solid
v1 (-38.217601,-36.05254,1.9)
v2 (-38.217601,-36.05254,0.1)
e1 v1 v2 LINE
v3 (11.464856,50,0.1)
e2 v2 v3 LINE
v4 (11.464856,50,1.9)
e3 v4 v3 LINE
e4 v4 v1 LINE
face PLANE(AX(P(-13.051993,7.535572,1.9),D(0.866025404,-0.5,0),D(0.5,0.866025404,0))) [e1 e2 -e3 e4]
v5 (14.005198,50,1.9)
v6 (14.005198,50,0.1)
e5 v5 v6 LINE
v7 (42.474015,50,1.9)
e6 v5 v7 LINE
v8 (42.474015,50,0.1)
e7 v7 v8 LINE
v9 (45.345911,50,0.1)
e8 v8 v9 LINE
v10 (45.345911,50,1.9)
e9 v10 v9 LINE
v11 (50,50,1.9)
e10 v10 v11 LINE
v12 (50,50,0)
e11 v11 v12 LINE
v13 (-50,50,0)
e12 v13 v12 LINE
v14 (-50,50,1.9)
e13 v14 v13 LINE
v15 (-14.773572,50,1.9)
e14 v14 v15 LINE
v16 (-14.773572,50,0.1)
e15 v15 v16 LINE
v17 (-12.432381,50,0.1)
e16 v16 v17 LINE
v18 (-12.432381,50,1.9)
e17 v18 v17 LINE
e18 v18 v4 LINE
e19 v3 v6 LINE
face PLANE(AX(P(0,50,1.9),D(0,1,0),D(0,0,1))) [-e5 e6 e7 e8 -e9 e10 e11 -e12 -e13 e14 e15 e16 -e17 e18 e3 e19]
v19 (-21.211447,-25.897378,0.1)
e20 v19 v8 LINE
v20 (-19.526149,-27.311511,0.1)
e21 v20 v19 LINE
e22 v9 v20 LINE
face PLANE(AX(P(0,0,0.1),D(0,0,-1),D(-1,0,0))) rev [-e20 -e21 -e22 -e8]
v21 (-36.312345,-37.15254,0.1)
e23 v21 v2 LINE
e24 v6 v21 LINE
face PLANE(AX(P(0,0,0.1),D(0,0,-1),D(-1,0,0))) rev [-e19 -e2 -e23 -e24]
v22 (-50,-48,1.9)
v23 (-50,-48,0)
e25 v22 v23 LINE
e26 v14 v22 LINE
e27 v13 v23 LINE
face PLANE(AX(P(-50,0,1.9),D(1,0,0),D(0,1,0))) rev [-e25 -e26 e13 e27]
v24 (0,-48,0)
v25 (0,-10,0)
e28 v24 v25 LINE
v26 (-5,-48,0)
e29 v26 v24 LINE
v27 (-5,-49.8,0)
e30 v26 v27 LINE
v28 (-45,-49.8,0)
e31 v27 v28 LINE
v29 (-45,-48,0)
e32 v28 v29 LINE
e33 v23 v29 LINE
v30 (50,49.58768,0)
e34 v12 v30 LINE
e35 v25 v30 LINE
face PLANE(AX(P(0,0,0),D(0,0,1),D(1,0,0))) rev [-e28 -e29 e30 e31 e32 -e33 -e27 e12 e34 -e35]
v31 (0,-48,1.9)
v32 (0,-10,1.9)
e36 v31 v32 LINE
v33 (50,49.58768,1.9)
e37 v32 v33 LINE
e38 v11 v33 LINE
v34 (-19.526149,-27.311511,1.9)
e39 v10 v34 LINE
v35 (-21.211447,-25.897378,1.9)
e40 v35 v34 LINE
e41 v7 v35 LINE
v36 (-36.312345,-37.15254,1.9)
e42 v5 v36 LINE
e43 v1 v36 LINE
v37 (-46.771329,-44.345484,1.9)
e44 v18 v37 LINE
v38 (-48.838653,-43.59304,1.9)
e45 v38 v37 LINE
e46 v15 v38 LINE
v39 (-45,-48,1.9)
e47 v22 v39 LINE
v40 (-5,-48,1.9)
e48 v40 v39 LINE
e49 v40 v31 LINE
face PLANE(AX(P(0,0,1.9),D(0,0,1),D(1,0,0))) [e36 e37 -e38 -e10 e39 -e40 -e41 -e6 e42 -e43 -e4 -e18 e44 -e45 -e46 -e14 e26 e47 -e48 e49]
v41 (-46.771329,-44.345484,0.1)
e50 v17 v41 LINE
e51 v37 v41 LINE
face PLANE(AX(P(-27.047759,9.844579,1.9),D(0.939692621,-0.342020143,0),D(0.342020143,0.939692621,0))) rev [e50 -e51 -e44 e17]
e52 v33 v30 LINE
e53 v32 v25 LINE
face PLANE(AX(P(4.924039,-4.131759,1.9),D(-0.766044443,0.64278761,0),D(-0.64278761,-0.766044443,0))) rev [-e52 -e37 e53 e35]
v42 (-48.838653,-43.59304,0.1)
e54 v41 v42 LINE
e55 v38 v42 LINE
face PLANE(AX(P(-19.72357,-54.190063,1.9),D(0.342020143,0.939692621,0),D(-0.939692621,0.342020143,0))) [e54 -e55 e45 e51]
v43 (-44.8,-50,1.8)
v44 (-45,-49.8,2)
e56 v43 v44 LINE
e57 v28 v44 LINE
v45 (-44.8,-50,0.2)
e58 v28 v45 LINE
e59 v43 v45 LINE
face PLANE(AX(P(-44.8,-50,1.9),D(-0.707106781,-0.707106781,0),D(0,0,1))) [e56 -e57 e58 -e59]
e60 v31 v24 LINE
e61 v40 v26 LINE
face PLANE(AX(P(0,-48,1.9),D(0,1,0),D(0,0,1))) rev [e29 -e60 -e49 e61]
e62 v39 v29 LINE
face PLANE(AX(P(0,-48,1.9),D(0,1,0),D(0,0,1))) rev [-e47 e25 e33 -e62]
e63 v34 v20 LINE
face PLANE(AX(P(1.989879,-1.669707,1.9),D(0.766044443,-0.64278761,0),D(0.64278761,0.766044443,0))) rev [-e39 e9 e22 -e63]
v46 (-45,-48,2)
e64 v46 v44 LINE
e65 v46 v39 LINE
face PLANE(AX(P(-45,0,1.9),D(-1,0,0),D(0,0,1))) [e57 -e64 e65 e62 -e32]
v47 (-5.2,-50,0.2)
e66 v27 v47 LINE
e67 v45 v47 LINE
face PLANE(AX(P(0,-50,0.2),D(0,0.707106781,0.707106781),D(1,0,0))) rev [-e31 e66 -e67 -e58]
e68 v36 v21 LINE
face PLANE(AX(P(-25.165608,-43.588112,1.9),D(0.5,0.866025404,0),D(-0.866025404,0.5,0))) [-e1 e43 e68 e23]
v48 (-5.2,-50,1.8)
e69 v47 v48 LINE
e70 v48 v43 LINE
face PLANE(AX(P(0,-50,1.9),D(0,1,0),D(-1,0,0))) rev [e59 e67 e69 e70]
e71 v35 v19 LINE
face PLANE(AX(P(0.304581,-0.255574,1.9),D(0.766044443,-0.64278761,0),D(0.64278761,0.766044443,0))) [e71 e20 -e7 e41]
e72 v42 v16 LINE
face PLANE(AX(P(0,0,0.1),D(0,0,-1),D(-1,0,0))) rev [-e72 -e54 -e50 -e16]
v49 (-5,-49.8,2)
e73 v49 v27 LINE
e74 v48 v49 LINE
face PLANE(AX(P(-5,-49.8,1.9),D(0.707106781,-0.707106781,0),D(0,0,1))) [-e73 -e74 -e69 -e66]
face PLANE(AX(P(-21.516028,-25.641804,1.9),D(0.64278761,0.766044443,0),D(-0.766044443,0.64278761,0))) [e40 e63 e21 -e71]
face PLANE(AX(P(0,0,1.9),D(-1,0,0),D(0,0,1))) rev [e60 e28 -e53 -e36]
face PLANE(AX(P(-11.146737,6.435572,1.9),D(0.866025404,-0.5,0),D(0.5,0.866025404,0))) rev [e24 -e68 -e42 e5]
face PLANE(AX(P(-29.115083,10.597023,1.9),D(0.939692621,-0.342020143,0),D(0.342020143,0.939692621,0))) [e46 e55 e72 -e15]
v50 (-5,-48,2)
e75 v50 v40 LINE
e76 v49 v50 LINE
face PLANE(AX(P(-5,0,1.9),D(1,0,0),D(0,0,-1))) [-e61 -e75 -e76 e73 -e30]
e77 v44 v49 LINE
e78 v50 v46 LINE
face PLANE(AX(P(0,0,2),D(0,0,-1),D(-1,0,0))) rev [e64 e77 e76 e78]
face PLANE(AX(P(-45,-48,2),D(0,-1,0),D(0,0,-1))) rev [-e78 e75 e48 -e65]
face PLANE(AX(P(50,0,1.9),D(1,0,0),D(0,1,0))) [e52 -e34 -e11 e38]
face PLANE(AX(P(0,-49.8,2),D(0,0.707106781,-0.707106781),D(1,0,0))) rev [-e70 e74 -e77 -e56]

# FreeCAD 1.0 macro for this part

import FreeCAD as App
import Part
import Sketcher

V = App.Vector
Q = App.Units.Quantity


def edges_at(feature, points):
    """Names of the edges that pass closest to the given points."""
    edges = feature.Shape.Edges
    near = lambda p: min(range(len(edges)), key=lambda i: edges[i].distToShape(Part.Vertex(*p))[0])
    return sorted({f"Edge{near(p) + 1}" for p in points})


def add_polygon(sketch, points):
    """Adds a closed chain of lines whose ends are joined by coincident constraints."""
    first, n = sketch.GeometryCount, len(points)
    for a, b in zip(points, points[1:] + points[:1]):
        sketch.addGeometry(Part.LineSegment(App.Vector(*a, 0), App.Vector(*b, 0)), False)
    for i in range(n):
        sketch.addConstraint(Sketcher.Constraint("Coincident", first + i, 2, first + (i + 1) % n, 1))

doc = App.newDocument("Part")
body = doc.addObject("PartDesign::Body", "Body")

# Sketch on XY plane
sketch1 = body.newObject("Sketcher::SketchObject", "Sketch")
sketch1.AttachmentSupport = (doc.getObject("XY_Plane"), [""])
sketch1.MapMode = "FlatFace"
add_polygon(sketch1, [(-36.312345, -37.15254), (-38.217601, -36.05254), (11.464856, 50), (-12.432381, 50), (-46.771329, -44.345484), (-48.838653, -43.59304), (-14.773572, 50), (-50, 50), (-50, -48), (-45, -48), (-45, -50), (-5, -50), (-5, -48), (0, -48), (0, -10), (50, 49.58768), (50, 50), (45.345911, 50), (-19.526149, -27.311511), (-21.211447, -25.897378), (42.474015, 50), (14.005198, 50)])  # lines 0-21
sketch1.addConstraint(Sketcher.Constraint("Horizontal", 2))
sketch1.addConstraint(Sketcher.Constraint("Horizontal", 6))
sketch1.addConstraint(Sketcher.Constraint("Vertical", 7))
sketch1.addConstraint(Sketcher.Constraint("Horizontal", 8))
sketch1.addConstraint(Sketcher.Constraint("Vertical", 9))
sketch1.addConstraint(Sketcher.Constraint("Horizontal", 10))
sketch1.addConstraint(Sketcher.Constraint("Vertical", 11))
sketch1.addConstraint(Sketcher.Constraint("Horizontal", 12))
sketch1.addConstraint(Sketcher.Constraint("Vertical", 13))
sketch1.addConstraint(Sketcher.Constraint("Vertical", 15))
sketch1.addConstraint(Sketcher.Constraint("Horizontal", 16))
sketch1.addConstraint(Sketcher.Constraint("Horizontal", 20))
sketch1.addConstraint(Sketcher.Constraint("Symmetric", 6, 2, 15, 2, -2))
sketch1.addConstraint(Sketcher.Constraint("PointOnObject", 12, 2, -2))
sketch1.addConstraint(Sketcher.Constraint("Perpendicular", 0, 1))
sketch1.addConstraint(Sketcher.Constraint("Perpendicular", 3, 4))
sketch1.addConstraint(Sketcher.Constraint("Perpendicular", 4, 5))
sketch1.addConstraint(Sketcher.Constraint("Parallel", 14, 17))
sketch1.addConstraint(Sketcher.Constraint("Perpendicular", 17, 18))
sketch1.addConstraint(Sketcher.Constraint("Perpendicular", 18, 19))
sketch1.addConstraint(Sketcher.Constraint("Parallel", 1, 21))
sketch1.addConstraint(Sketcher.Constraint("Horizontal", 2, 2, 5, 2))
sketch1.addConstraint(Sketcher.Constraint("Horizontal", 8, 2, 11, 2))
sketch1.addConstraint(Sketcher.Constraint("Horizontal", 16, 2, 19, 2))
sketch1.addConstraint(Sketcher.Constraint("Equal", 8, 12))
sketch1.addConstraint(Sketcher.Constraint("Equal", 0, 4))
sketch1.addConstraint(Sketcher.Constraint("Equal", 4, 18))
sketch1.addConstraint(Sketcher.Constraint("DistanceX", 8, 1, 8, 2, 5.0))
sketch1.addConstraint(Sketcher.Constraint("DistanceX", 10, 1, 10, 2, 40.0))
sketch1.addConstraint(Sketcher.Constraint("DistanceY", 7, 2, 7, 1, 98.0))
sketch1.addConstraint(Sketcher.Constraint("DistanceY", 9, 2, 9, 1, 2.0))
sketch1.addConstraint(Sketcher.Constraint("DistanceY", 13, 1, 13, 2, 38.0))
sketch1.addConstraint(Sketcher.Constraint("Angle", 0, Q("150 deg")))
sketch1.addConstraint(Sketcher.Constraint("Angle", 3, Q("-110 deg")))
sketch1.addConstraint(Sketcher.Constraint("Angle", 14, Q("50 deg")))
sketch1.addConstraint(Sketcher.Constraint("DistanceY", -1, 1, 1, 2, 50.0))
sketch1.addConstraint(Sketcher.Constraint("Distance", 0, 2.2))
sketch1.addConstraint(Sketcher.Constraint("DistanceX", 16, 2, 16, 1, 4.654089))
sketch1.addConstraint(Sketcher.Constraint("DistanceX", 0, 2, -1, 1, 38.217601))
sketch1.addConstraint(Sketcher.Constraint("DistanceY", 4, 2, 0, 2, 7.5405))
sketch1.addConstraint(Sketcher.Constraint("Distance", 17, 100.92301))
sketch1.addConstraint(Sketcher.Constraint("DistanceX", 2, 2, 2, 1, 23.897237))
sketch1.addConstraint(Sketcher.Constraint("DistanceX", 6, 2, 6, 1, 35.226428))
pad1 = body.newObject("PartDesign::Pad", "Pad")
pad1.Profile = sketch1
pad1.Length = 1.9

# Sketch on XY plane
sketch2 = body.newObject("Sketcher::SketchObject", "Sketch001")
sketch2.AttachmentSupport = (doc.getObject("XY_Plane"), [""])
sketch2.MapMode = "FlatFace"
add_polygon(sketch2, [(42.474015, 50), (45.345911, 50), (-19.526149, -27.311511), (-21.211447, -25.897378)])  # lines 0-3
add_polygon(sketch2, [(14.005198, 50), (-36.312345, -37.15254), (-38.217601, -36.05254), (11.464856, 50)])  # lines 4-7
add_polygon(sketch2, [(-14.773572, 50), (-12.432381, 50), (-46.771329, -44.345484), (-48.838653, -43.59304)])  # lines 8-11
sketch2.addConstraint(Sketcher.Constraint("Horizontal", 0))
sketch2.addConstraint(Sketcher.Constraint("Horizontal", 7))
sketch2.addConstraint(Sketcher.Constraint("Horizontal", 8))
sketch2.addConstraint(Sketcher.Constraint("Perpendicular", 1, 2))
sketch2.addConstraint(Sketcher.Constraint("Perpendicular", 2, 3))
sketch2.addConstraint(Sketcher.Constraint("Perpendicular", 4, 5))
sketch2.addConstraint(Sketcher.Constraint("Perpendicular", 5, 6))
sketch2.addConstraint(Sketcher.Constraint("Perpendicular", 9, 10))
sketch2.addConstraint(Sketcher.Constraint("Perpendicular", 10, 11))
sketch2.addConstraint(Sketcher.Constraint("Horizontal", 3, 2, 6, 2))
sketch2.addConstraint(Sketcher.Constraint("Horizontal", 7, 2, 8, 2))
sketch2.addConstraint(Sketcher.Constraint("Equal", 2, 5))
sketch2.addConstraint(Sketcher.Constraint("Equal", 5, 10))
sketch2.addConstraint(Sketcher.Constraint("Angle", 1, Q("-130 deg")))
sketch2.addConstraint(Sketcher.Constraint("Angle", 4, Q("-120 deg")))
sketch2.addConstraint(Sketcher.Constraint("Angle", 9, Q("-110 deg")))
sketch2.addConstraint(Sketcher.Constraint("DistanceY", -1, 1, 0, 2, 50.0))
sketch2.addConstraint(Sketcher.Constraint("Distance", 2, 2.2))
sketch2.addConstraint(Sketcher.Constraint("DistanceX", 5, 2, -1, 1, 38.217601))
sketch2.addConstraint(Sketcher.Constraint("DistanceX", 4, 2, 2, 2, 15.100898))
sketch2.addConstraint(Sketcher.Constraint("DistanceY", 10, 2, 5, 2, 7.5405))
sketch2.addConstraint(Sketcher.Constraint("Distance", 1, 100.92301))
sketch2.addConstraint(Sketcher.Constraint("DistanceY", 4, 2, -1, 1, 37.15254))
sketch2.addConstraint(Sketcher.Constraint("DistanceX", 8, 2, -1, 1, 12.432381))
pad2 = body.newObject("PartDesign::Pad", "Pad001")
pad2.Profile = sketch2
pad2.Length = 0.1

# Sketch on XY plane
sketch3 = body.newObject("Sketcher::SketchObject", "Sketch002")
sketch3.AttachmentSupport = (doc.getObject("XY_Plane"), [""])
sketch3.MapMode = "FlatFace"
sketch3.AttachmentOffset = App.Placement(V(0, 0, 1.9), App.Rotation())
add_polygon(sketch3, [(-45, -48), (-45, -50), (-5, -50), (-5, -48)])  # lines 0-3
sketch3.addConstraint(Sketcher.Constraint("Vertical", 0))
sketch3.addConstraint(Sketcher.Constraint("Horizontal", 1))
sketch3.addConstraint(Sketcher.Constraint("Vertical", 2))
sketch3.addConstraint(Sketcher.Constraint("Horizontal", 3))
sketch3.addConstraint(Sketcher.Constraint("DistanceX", 1, 1, 1, 2, 40.0))
sketch3.addConstraint(Sketcher.Constraint("DistanceY", 0, 2, 0, 1, 2.0))
sketch3.addConstraint(Sketcher.Constraint("DistanceX", 0, 2, -1, 1, 45.0))
sketch3.addConstraint(Sketcher.Constraint("DistanceY", 0, 2, -1, 1, 50.0))
pad3 = body.newObject("PartDesign::Pad", "Pad002")
pad3.Profile = sketch3
pad3.Length = 0.1
doc.recompute()

chamfer = body.newObject("PartDesign::Chamfer", "Chamfer")
chamfer.Base = (pad3, edges_at(pad3, [
    (-25, -50, 2),
    (-25, -50, 0),
    (-5, -50, 1),
    (-45, -50, 1),
]))
chamfer.Size = 0.2

doc.recompute()
